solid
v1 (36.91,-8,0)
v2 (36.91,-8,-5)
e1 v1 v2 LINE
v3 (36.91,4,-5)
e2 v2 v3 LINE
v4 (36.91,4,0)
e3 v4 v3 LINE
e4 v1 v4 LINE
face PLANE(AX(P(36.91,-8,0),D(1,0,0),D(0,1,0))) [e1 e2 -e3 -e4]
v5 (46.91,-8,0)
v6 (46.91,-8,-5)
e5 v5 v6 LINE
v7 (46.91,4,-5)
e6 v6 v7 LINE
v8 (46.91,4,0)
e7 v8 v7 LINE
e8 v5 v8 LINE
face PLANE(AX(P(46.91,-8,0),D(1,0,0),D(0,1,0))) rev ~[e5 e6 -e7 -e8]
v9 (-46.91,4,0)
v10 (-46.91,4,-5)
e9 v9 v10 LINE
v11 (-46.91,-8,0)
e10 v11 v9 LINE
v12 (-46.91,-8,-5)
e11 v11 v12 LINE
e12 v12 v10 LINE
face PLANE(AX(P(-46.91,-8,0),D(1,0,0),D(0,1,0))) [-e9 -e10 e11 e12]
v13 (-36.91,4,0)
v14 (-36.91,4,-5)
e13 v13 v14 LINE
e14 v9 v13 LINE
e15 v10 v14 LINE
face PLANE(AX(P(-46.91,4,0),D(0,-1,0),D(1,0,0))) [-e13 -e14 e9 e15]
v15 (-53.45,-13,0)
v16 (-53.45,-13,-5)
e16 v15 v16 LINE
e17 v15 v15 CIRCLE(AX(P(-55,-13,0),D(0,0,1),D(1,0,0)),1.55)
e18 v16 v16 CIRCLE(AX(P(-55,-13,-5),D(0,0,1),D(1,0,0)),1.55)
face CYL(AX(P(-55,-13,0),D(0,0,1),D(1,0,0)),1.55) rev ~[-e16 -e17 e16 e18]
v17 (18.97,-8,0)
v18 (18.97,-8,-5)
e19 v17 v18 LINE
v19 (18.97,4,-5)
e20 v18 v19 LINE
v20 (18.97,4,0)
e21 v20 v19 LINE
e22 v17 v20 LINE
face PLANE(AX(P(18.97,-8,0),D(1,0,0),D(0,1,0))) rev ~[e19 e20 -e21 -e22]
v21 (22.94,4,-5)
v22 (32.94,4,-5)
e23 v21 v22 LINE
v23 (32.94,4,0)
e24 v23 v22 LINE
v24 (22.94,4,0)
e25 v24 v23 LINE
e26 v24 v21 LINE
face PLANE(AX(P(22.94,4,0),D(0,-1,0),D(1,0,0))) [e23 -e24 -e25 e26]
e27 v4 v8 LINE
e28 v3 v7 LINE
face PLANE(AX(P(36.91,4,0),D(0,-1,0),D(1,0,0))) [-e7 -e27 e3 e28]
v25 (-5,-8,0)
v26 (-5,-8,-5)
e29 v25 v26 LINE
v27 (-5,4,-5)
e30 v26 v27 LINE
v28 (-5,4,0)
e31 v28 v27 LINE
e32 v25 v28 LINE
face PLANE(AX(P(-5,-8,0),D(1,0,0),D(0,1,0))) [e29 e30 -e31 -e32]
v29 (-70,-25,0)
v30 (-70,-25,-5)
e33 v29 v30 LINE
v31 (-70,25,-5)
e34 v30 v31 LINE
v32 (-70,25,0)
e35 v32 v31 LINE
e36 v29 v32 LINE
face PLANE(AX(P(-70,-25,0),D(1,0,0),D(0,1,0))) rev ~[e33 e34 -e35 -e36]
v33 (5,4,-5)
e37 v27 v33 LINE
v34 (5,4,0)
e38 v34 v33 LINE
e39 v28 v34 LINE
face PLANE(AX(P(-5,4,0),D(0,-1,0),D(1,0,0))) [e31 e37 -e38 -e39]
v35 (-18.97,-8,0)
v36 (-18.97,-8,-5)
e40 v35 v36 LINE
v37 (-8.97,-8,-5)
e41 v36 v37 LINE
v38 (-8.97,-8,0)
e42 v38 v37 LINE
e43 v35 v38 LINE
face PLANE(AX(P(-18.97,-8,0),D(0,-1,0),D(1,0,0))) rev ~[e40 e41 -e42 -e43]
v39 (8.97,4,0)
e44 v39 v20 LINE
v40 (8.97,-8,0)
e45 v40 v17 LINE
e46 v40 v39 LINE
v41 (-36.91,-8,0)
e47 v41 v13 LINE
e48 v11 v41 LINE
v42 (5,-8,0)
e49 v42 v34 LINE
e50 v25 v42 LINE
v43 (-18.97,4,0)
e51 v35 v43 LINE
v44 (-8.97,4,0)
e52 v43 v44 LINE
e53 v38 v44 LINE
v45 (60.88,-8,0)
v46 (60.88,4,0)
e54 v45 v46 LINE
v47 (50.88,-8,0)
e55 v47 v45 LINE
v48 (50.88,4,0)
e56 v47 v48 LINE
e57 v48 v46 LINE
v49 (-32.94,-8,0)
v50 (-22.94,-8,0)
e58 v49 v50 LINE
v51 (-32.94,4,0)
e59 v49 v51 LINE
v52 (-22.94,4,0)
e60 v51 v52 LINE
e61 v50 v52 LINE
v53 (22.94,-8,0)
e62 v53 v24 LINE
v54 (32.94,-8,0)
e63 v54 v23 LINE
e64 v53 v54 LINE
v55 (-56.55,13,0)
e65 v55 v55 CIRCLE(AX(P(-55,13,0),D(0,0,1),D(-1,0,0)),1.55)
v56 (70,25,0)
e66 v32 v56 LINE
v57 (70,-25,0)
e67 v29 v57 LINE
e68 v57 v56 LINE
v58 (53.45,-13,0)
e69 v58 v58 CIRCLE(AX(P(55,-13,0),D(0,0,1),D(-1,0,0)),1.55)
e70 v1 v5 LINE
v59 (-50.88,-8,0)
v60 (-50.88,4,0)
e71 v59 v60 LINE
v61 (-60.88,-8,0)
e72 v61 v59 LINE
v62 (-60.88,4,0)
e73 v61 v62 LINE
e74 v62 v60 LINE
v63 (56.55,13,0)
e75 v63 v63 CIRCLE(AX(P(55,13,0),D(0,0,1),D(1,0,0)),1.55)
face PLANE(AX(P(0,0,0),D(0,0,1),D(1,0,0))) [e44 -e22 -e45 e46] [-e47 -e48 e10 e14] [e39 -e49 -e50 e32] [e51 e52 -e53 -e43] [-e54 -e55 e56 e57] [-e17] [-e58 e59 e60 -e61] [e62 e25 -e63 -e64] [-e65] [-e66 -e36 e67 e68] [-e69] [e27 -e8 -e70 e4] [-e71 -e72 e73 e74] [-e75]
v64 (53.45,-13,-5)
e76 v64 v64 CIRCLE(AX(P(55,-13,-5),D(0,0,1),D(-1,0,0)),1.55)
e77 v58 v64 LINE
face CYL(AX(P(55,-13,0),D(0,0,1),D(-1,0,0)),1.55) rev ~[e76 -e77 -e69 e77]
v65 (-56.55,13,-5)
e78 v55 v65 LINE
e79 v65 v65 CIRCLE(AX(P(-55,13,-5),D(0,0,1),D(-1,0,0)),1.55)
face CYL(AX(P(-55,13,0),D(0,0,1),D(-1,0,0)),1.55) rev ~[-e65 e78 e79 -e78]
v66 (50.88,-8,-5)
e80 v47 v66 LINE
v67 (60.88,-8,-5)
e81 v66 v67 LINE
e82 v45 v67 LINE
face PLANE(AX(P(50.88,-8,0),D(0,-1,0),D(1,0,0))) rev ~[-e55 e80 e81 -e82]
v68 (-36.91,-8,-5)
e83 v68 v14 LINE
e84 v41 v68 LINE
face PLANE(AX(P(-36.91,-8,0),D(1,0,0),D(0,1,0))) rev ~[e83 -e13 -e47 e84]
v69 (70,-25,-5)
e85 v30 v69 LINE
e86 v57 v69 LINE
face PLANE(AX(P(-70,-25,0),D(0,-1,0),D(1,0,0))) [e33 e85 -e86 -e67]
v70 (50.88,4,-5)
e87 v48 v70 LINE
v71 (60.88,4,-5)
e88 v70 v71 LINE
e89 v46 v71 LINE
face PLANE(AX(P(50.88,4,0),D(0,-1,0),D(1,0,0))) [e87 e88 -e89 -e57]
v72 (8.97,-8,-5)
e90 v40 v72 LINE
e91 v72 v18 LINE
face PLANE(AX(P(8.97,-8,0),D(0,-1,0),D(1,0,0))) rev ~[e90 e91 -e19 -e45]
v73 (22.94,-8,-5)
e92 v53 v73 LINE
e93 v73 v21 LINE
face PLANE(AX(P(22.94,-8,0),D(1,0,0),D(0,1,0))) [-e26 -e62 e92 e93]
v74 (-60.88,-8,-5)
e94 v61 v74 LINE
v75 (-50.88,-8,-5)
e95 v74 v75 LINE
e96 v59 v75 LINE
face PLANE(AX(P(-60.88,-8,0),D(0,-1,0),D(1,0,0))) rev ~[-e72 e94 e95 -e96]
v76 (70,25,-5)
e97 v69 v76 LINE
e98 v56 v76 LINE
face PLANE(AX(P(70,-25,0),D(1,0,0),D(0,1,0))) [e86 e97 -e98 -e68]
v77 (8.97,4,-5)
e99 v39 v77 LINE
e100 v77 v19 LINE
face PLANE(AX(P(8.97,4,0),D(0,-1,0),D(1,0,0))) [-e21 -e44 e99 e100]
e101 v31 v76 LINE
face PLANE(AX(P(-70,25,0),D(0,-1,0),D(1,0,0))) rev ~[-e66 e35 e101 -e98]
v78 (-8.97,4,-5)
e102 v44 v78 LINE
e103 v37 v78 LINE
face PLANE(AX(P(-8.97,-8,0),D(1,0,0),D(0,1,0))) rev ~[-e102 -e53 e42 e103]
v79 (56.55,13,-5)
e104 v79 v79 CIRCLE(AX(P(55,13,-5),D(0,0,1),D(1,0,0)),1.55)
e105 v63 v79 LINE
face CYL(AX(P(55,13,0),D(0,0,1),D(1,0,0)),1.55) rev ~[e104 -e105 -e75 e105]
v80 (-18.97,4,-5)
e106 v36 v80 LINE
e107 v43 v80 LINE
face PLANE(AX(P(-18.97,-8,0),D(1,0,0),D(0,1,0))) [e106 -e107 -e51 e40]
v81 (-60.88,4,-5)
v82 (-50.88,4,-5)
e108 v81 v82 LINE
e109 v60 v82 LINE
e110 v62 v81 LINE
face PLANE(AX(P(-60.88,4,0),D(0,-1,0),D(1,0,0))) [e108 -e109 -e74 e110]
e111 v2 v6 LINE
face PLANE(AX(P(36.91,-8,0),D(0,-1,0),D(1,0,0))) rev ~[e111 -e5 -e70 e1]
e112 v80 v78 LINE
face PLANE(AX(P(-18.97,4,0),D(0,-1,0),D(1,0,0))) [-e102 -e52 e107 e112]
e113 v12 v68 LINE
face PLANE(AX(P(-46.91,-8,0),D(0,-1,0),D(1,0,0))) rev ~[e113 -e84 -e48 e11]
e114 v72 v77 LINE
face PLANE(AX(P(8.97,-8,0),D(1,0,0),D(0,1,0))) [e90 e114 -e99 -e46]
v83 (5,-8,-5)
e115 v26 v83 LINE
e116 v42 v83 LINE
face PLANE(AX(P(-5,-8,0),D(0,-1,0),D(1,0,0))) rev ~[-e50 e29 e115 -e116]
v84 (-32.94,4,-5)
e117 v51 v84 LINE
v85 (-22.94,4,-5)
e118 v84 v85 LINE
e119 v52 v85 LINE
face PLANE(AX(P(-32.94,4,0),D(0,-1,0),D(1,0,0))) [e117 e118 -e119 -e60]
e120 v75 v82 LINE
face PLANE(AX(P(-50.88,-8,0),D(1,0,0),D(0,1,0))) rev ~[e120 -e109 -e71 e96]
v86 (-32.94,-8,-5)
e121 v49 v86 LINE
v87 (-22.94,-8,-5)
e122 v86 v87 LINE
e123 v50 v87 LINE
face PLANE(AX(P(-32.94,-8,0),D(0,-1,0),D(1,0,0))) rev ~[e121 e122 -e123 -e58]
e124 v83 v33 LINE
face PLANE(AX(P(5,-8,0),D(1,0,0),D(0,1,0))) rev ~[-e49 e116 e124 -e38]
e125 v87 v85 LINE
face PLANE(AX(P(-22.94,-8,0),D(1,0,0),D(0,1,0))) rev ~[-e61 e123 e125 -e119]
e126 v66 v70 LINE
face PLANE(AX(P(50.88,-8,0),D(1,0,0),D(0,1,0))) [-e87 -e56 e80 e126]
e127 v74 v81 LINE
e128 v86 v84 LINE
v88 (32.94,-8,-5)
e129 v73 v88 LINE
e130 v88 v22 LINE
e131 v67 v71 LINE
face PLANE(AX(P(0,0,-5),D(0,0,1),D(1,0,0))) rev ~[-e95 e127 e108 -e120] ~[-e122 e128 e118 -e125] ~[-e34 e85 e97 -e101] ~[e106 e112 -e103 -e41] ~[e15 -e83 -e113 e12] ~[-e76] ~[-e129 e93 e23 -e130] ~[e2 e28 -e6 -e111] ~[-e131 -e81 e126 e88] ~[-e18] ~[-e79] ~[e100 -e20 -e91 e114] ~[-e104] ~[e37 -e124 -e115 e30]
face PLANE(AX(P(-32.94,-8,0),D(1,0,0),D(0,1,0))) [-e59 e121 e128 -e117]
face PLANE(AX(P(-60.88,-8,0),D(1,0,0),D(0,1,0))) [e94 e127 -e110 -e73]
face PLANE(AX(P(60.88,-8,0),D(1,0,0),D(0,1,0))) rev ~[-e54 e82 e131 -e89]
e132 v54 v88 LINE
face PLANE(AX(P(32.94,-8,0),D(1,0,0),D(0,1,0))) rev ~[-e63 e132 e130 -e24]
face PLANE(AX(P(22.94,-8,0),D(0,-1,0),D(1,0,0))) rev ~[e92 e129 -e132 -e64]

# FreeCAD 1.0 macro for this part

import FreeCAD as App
import Part
import Sketcher


def add_polygon(sketch, points):
    """Adds a closed chain of lines whose ends are joined by coincident constraints."""
    first, n = sketch.GeometryCount, len(points)
    for a, b in zip(points, points[1:] + points[:1]):
        sketch.addGeometry(Part.LineSegment(App.Vector(*a, 0), App.Vector(*b, 0)), False)
    for i in range(n):
        sketch.addConstraint(Sketcher.Constraint("Coincident", first + i, 2, first + (i + 1) % n, 1))

doc = App.newDocument("Part")
params = doc.addObject("Spreadsheet::Sheet", "Params")
for row, (alias, value) in enumerate([
    ("sketch1_diameter", "3.1 mm"),
    ("sketch1_width", "140 mm"),
    ("sketch1_width2", "10 mm"),
    ("sketch1_height", "50 mm"),
    ("sketch1_height2", "12 mm"),
    ("pad1_length", "5 mm"),
], start=1):
    params.set(f"A{row}", alias)
    params.set(f"B{row}", "=" + value)
    params.setAlias(f"B{row}", alias)

body = doc.addObject("PartDesign::Body", "Body")

# Sketch on XY plane
sketch1 = body.newObject("Sketcher::SketchObject", "Sketch")
sketch1.AttachmentSupport = (doc.getObject("XY_Plane"), [""])
sketch1.MapMode = "FlatFace"
add_polygon(sketch1, [(-70, 25), (-70, -25), (70, -25), (70, 25)])  # lines 0-3
sketch1.addGeometry(Part.Circle(App.Vector(-55, -13, 0), App.Vector(0, 0, 1), 1.6), False)  # 4
add_polygon(sketch1, [(-50.9, -8), (-60.9, -8), (-60.9, 4), (-50.9, 4)])  # lines 5-8
add_polygon(sketch1, [(-36.9, -8), (-46.9, -8), (-46.9, 4), (-36.9, 4)])  # lines 9-12
add_polygon(sketch1, [(-22.9, -8), (-32.9, -8), (-32.9, 4), (-22.9, 4)])  # lines 13-16
add_polygon(sketch1, [(-9, -8), (-19, -8), (-19, 4), (-9, 4)])  # lines 17-20
sketch1.addGeometry(Part.Circle(App.Vector(55, -13, 0), App.Vector(0, 0, 1), 1.6), False)  # 21
add_polygon(sketch1, [(5, -8), (-5, -8), (-5, 4), (5, 4)])  # lines 22-25
add_polygon(sketch1, [(19, -8), (9, -8), (9, 4), (19, 4)])  # lines 26-29
add_polygon(sketch1, [(32.9, -8), (22.9, -8), (22.9, 4), (32.9, 4)])  # lines 30-33
add_polygon(sketch1, [(46.9, -8), (36.9, -8), (36.9, 4), (46.9, 4)])  # lines 34-37
add_polygon(sketch1, [(60.9, -8), (50.9, -8), (50.9, 4), (60.9, 4)])  # lines 38-41
sketch1.addGeometry(Part.Circle(App.Vector(-55, 13, 0), App.Vector(0, 0, 1), 1.6), False)  # 42
sketch1.addGeometry(Part.Circle(App.Vector(55, 13, 0), App.Vector(0, 0, 1), 1.6), False)  # 43
sketch1.addConstraint(Sketcher.Constraint("Vertical", 0))
sketch1.addConstraint(Sketcher.Constraint("Horizontal", 1))
sketch1.addConstraint(Sketcher.Constraint("Vertical", 2))
sketch1.addConstraint(Sketcher.Constraint("Horizontal", 3))
sketch1.addConstraint(Sketcher.Constraint("Horizontal", 5))
sketch1.addConstraint(Sketcher.Constraint("Vertical", 6))
sketch1.addConstraint(Sketcher.Constraint("Horizontal", 7))
sketch1.addConstraint(Sketcher.Constraint("Vertical", 8))
sketch1.addConstraint(Sketcher.Constraint("Horizontal", 9))
sketch1.addConstraint(Sketcher.Constraint("Vertical", 10))
sketch1.addConstraint(Sketcher.Constraint("Horizontal", 11))
sketch1.addConstraint(Sketcher.Constraint("Vertical", 12))
sketch1.addConstraint(Sketcher.Constraint("Horizontal", 13))
sketch1.addConstraint(Sketcher.Constraint("Vertical", 14))
sketch1.addConstraint(Sketcher.Constraint("Horizontal", 15))
sketch1.addConstraint(Sketcher.Constraint("Vertical", 16))
sketch1.addConstraint(Sketcher.Constraint("Horizontal", 17))
sketch1.addConstraint(Sketcher.Constraint("Vertical", 18))
sketch1.addConstraint(Sketcher.Constraint("Horizontal", 19))
sketch1.addConstraint(Sketcher.Constraint("Vertical", 20))
sketch1.addConstraint(Sketcher.Constraint("Horizontal", 22))
sketch1.addConstraint(Sketcher.Constraint("Vertical", 23))
sketch1.addConstraint(Sketcher.Constraint("Horizontal", 24))
sketch1.addConstraint(Sketcher.Constraint("Vertical", 25))
sketch1.addConstraint(Sketcher.Constraint("Horizontal", 26))
sketch1.addConstraint(Sketcher.Constraint("Vertical", 27))
sketch1.addConstraint(Sketcher.Constraint("Horizontal", 28))
sketch1.addConstraint(Sketcher.Constraint("Vertical", 29))
sketch1.addConstraint(Sketcher.Constraint("Horizontal", 30))
sketch1.addConstraint(Sketcher.Constraint("Vertical", 31))
sketch1.addConstraint(Sketcher.Constraint("Horizontal", 32))
sketch1.addConstraint(Sketcher.Constraint("Vertical", 33))
sketch1.addConstraint(Sketcher.Constraint("Horizontal", 34))
sketch1.addConstraint(Sketcher.Constraint("Vertical", 35))
sketch1.addConstraint(Sketcher.Constraint("Horizontal", 36))
sketch1.addConstraint(Sketcher.Constraint("Vertical", 37))
sketch1.addConstraint(Sketcher.Constraint("Horizontal", 38))
sketch1.addConstraint(Sketcher.Constraint("Vertical", 39))
sketch1.addConstraint(Sketcher.Constraint("Horizontal", 40))
sketch1.addConstraint(Sketcher.Constraint("Vertical", 41))
sketch1.addConstraint(Sketcher.Constraint("Equal", 4, 21))
sketch1.addConstraint(Sketcher.Constraint("Equal", 21, 42))
sketch1.addConstraint(Sketcher.Constraint("Equal", 42, 43))
sketch1.addConstraint(Sketcher.Constraint("Symmetric", 21, 3, 42, 3, -1, 1))
sketch1.addConstraint(Sketcher.Constraint("Symmetric", 4, 3, 43, 3, -1, 1))
sketch1.addConstraint(Sketcher.Constraint("Symmetric", 0, 2, 2, 2, -1, 1))
sketch1.addConstraint(Sketcher.Constraint("Symmetric", 4, 3, 21, 3, -2))
sketch1.addConstraint(Sketcher.Constraint("Symmetric", 20, 2, 26, 2, -2))
sketch1.addConstraint(Sketcher.Constraint("Symmetric", 18, 2, 28, 2, -2))
sketch1.addConstraint(Sketcher.Constraint("Symmetric", 16, 2, 30, 2, -2))
sketch1.addConstraint(Sketcher.Constraint("Symmetric", 14, 2, 32, 2, -2))
sketch1.addConstraint(Sketcher.Constraint("Symmetric", 12, 2, 34, 2, -2))
sketch1.addConstraint(Sketcher.Constraint("Symmetric", 10, 2, 36, 2, -2))
sketch1.addConstraint(Sketcher.Constraint("Symmetric", 8, 2, 38, 2, -2))
sketch1.addConstraint(Sketcher.Constraint("Symmetric", 6, 2, 40, 2, -2))
sketch1.addConstraint(Sketcher.Constraint("Horizontal", 8, 2, 9, 2))
sketch1.addConstraint(Sketcher.Constraint("Horizontal", 7, 2, 10, 2))
sketch1.addConstraint(Sketcher.Constraint("Horizontal", 12, 2, 13, 2))
sketch1.addConstraint(Sketcher.Constraint("Horizontal", 11, 2, 14, 2))
sketch1.addConstraint(Sketcher.Constraint("Horizontal", 16, 2, 17, 2))
sketch1.addConstraint(Sketcher.Constraint("Horizontal", 15, 2, 18, 2))
sketch1.addConstraint(Sketcher.Constraint("Horizontal", 20, 2, 22, 2))
sketch1.addConstraint(Sketcher.Constraint("Horizontal", 19, 2, 23, 2))
sketch1.addConstraint(Sketcher.Constraint("Equal", 7, 9))
sketch1.addConstraint(Sketcher.Constraint("Equal", 11, 13))
sketch1.addConstraint(Sketcher.Constraint("Equal", 15, 17))
sketch1.addConstraint(Sketcher.Constraint("Equal", 19, 22))
sketch1.addConstraint(Sketcher.Constraint("Diameter", 4, 3.1))
sketch1.addConstraint(Sketcher.Constraint("DistanceX", 1, 1, 1, 2, 140.0))
sketch1.addConstraint(Sketcher.Constraint("DistanceX", 5, 2, 5, 1, 10.0))
sketch1.addConstraint(Sketcher.Constraint("DistanceY", 0, 2, 0, 1, 50.0))
sketch1.addConstraint(Sketcher.Constraint("DistanceY", 6, 1, 6, 2, 12.0))
sketch1.addConstraint(Sketcher.Constraint("DistanceX", 4, 3, -1, 1, 55.0))
sketch1.addConstraint(Sketcher.Constraint("DistanceY", 4, 3, -1, 1, 13.0))
sketch1.addConstraint(Sketcher.Constraint("DistanceY", 5, 2, -1, 1, 8.0))
sketch1.addConstraint(Sketcher.Constraint("DistanceX", 22, 2, -1, 1, 5.0))
sketch1.addConstraint(Sketcher.Constraint("DistanceX", 5, 2, -1, 1, 60.88))
sketch1.addConstraint(Sketcher.Constraint("DistanceX", 9, 2, -1, 1, 46.91))
sketch1.addConstraint(Sketcher.Constraint("DistanceX", 13, 2, -1, 1, 32.94))
sketch1.addConstraint(Sketcher.Constraint("DistanceX", 17, 2, -1, 1, 18.97))
sketch1.setExpression("Constraints[107]", "Params.sketch1_diameter")
sketch1.setExpression("Constraints[108]", "Params.sketch1_width")
sketch1.setExpression("Constraints[109]", "Params.sketch1_width2")
sketch1.setExpression("Constraints[110]", "Params.sketch1_height")
sketch1.setExpression("Constraints[111]", "Params.sketch1_height2")
pad1 = body.newObject("PartDesign::Pad", "Pad")
pad1.Profile = sketch1
pad1.setExpression("Length", "Params.pad1_length")
pad1.Reversed = True

doc.recompute()
